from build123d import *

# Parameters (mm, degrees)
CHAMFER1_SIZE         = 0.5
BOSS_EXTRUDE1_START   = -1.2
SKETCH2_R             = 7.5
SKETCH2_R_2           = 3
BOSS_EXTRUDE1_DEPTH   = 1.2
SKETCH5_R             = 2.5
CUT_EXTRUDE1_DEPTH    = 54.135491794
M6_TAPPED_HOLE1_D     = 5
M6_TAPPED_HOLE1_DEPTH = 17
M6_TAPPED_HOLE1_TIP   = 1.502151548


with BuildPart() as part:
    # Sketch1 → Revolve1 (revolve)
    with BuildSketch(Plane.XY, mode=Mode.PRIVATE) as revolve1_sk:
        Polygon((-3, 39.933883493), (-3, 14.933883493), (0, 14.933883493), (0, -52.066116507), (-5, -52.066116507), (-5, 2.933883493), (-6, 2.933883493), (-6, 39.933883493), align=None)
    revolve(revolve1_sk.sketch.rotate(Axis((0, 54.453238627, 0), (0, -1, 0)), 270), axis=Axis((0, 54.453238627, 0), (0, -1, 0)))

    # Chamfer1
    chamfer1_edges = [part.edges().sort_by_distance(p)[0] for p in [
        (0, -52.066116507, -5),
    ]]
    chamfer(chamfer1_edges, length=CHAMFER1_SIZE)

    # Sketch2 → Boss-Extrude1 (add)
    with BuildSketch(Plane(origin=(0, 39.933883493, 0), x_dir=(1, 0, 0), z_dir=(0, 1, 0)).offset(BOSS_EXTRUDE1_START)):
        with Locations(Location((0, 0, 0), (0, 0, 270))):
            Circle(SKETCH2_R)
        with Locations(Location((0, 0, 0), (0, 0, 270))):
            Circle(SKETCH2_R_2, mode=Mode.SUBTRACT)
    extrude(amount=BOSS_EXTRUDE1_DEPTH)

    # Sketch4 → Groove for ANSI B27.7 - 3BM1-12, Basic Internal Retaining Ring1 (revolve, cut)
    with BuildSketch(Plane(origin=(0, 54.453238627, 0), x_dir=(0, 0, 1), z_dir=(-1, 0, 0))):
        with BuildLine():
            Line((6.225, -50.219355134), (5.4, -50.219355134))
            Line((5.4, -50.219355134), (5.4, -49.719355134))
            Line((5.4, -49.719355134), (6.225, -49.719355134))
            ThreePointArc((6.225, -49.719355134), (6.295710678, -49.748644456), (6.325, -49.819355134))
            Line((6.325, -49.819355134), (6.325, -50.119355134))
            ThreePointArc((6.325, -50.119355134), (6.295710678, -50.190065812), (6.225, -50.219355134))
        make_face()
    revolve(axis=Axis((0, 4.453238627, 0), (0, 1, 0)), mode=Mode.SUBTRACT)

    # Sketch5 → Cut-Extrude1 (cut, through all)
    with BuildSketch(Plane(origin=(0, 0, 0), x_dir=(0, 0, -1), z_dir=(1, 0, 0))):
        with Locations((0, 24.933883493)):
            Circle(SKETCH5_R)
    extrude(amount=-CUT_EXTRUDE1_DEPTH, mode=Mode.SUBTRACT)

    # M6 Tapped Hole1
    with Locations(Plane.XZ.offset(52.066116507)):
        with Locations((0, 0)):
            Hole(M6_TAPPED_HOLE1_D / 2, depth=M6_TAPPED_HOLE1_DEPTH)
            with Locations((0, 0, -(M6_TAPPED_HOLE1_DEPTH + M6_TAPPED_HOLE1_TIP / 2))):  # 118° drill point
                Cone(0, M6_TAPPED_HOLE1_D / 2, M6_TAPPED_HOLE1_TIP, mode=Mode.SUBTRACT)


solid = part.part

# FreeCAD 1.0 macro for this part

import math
import FreeCAD as App
import Part
import Sketcher
from FreeCAD import Vector


def edges_at(feature, points):
    """Names of the edges that pass closest to the given points."""
    edges = feature.Shape.Edges
    near = lambda p: min(range(len(edges)), key=lambda i: edges[i].distToShape(Part.Vertex(*p))[0])
    return sorted({f"Edge{near(p) + 1}" for p in points})


def add_polygon(sketch, points):
    """Adds a closed chain of lines whose ends are joined by coincident constraints."""
    first, n = sketch.GeometryCount, len(points)
    for a, b in zip(points, points[1:] + points[:1]):
        sketch.addGeometry(Part.LineSegment(App.Vector(*a, 0), App.Vector(*b, 0)), False)
    for i in range(n):
        sketch.addConstraint(Sketcher.Constraint("Coincident", first + i, 2, first + (i + 1) % n, 1))

doc = App.newDocument("Part")
body = doc.addObject("PartDesign::Body", "Body")

# Sketch on XY plane
sketch1 = body.newObject("Sketcher::SketchObject", "Sketch")
sketch1.AttachmentSupport = (doc.getObject("XY_Plane"), [""])
sketch1.MapMode = "FlatFace"
add_polygon(sketch1, [(-3, 14.9), (-3, 39.9), (-6, 39.9), (-6, 2.9), (-5, 2.9), (-5, -52.1), (0, -52.1), (0, 14.9)])  # lines 0-7
sketch1.addConstraint([
    Sketcher.Constraint("Vertical", 0),
    Sketcher.Constraint("Horizontal", 1),
    Sketcher.Constraint("Vertical", 2),
    Sketcher.Constraint("Horizontal", 3),
    Sketcher.Constraint("Vertical", 4),
    Sketcher.Constraint("Horizontal", 5),
    Sketcher.Constraint("Vertical", 6),
    Sketcher.Constraint("Horizontal", 7),
    Sketcher.Constraint("PointOnObject", 5, 2, -2),
    Sketcher.Constraint("Equal", 1, 7),
    Sketcher.Constraint("DistanceX", 1, 2, 1, 1, 3.0),
    Sketcher.Constraint("DistanceX", 3, 1, 3, 2, 1.0),
    Sketcher.Constraint("DistanceY", 0, 1, 0, 2, 25.0),
    Sketcher.Constraint("DistanceY", 2, 2, 2, 1, 37.0),
    Sketcher.Constraint("DistanceY", 4, 2, 4, 1, 55.0),
    Sketcher.Constraint("DistanceY", -1, 1, 0, 2, 39.933883),
])
revolution = body.newObject("PartDesign::Revolution", "Revolution")
revolution.Profile = sketch1
revolution.ReferenceAxis = (sketch1, ["V_Axis"])
revolution.Angle = 360
doc.recompute()

chamfer = body.newObject("PartDesign::Chamfer", "Chamfer")
chamfer.Base = (revolution, edges_at(revolution, [(0, -52.066, -5)]))
chamfer.Size = 0.5

# Sketch on XZ plane
sketch2 = body.newObject("Sketcher::SketchObject", "Sketch001")
sketch2.AttachmentSupport = (doc.getObject("XZ_Plane"), [""])
sketch2.MapMode = "FlatFace"
sketch2.AttachmentOffset = App.Placement(Vector(0, 0, -38.733883), App.Rotation())
sketch2.addGeometry([
    Part.Circle(Vector(0, 0, 0), Vector(0, 0, 1), 7.5),
    Part.Circle(Vector(0, 0, 0), Vector(0, 0, 1), 3),
], False)
sketch2.addConstraint([
    Sketcher.Constraint("Coincident", 0, 3, -1, 1),
    Sketcher.Constraint("Coincident", 1, 3, -1, 1),
    Sketcher.Constraint("Diameter", 0, 15.0),
    Sketcher.Constraint("Diameter", 1, 6.0),
])
pad1 = body.newObject("PartDesign::Pad", "Pad")
pad1.Profile = sketch2
pad1.Length = 1.2
pad1.Reversed = True

# Sketch on YZ plane
sketch3 = body.newObject("Sketcher::SketchObject", "Sketch002")
sketch3.AttachmentSupport = (doc.getObject("YZ_Plane"), [""])
sketch3.MapMode = "FlatFace"
sketch3.addGeometry([
    Part.LineSegment(Vector(4.23, 5.4, 0), Vector(4.23, 6.22, 0)),  # 0
    Part.ArcOfCircle(Part.Circle(Vector(4.33, 6.22, 0), Vector(0, 0, 1), 0.1), math.radians(90), math.radians(180)),  # 1
    Part.LineSegment(Vector(4.33, 6.33, 0), Vector(4.63, 6.33, 0)),  # 2
    Part.ArcOfCircle(Part.Circle(Vector(4.63, 6.22, 0), Vector(0, 0, 1), 0.1), math.radians(0), math.radians(90)),  # 3
    Part.LineSegment(Vector(4.73, 6.22, 0), Vector(4.73, 5.4, 0)),  # 4
    Part.LineSegment(Vector(4.73, 5.4, 0), Vector(4.23, 5.4, 0)),  # 5
], False)
sketch3.addConstraint([
    Sketcher.Constraint("Tangent", 0, 2, 1, 2),
    Sketcher.Constraint("Tangent", 1, 1, 2, 1),
    Sketcher.Constraint("Tangent", 2, 2, 3, 2),
    Sketcher.Constraint("Tangent", 3, 1, 4, 1),
    Sketcher.Constraint("Coincident", 4, 2, 5, 1),
    Sketcher.Constraint("Coincident", 5, 2, 0, 1),
    Sketcher.Constraint("Vertical", 0),
    Sketcher.Constraint("Horizontal", 2),
    Sketcher.Constraint("Vertical", 4),
    Sketcher.Constraint("Horizontal", 5),
    Sketcher.Constraint("Equal", 1, 3),
    Sketcher.Constraint("Radius", 1, 0.1),
    Sketcher.Constraint("DistanceX", 2, 1, 2, 2, 0.3),
    Sketcher.Constraint("DistanceY", -1, 1, 4, 2, 5.4),
    Sketcher.Constraint("DistanceY", 0, 1, 0, 2, 0.825),
    Sketcher.Constraint("DistanceX", -1, 1, 1, 3, 4.333883),
])
groove = body.newObject("PartDesign::Groove", "Groove")
groove.Profile = sketch3
groove.ReferenceAxis = (sketch3, ["H_Axis"])
groove.Angle = 360

# Sketch on YZ plane
sketch4 = body.newObject("Sketcher::SketchObject", "Sketch003")
sketch4.AttachmentSupport = (doc.getObject("YZ_Plane"), [""])
sketch4.MapMode = "FlatFace"
sketch4.addGeometry(Part.Circle(Vector(24.9, 0, 0), Vector(0, 0, 1), 2.5), False)
sketch4.addConstraint([
    Sketcher.Constraint("PointOnObject", 0, 3, -1),
    Sketcher.Constraint("Diameter", 0, 5.0),
    Sketcher.Constraint("DistanceX", -1, 1, 0, 3, 24.933883),
])
pocket1 = body.newObject("PartDesign::Pocket", "Pocket")
pocket1.Profile = sketch4
pocket1.Type = "ThroughAll"

# Sketch on XZ plane
sketch5 = body.newObject("Sketcher::SketchObject", "Sketch004")
sketch5.AttachmentSupport = (doc.getObject("XZ_Plane"), [""])
sketch5.MapMode = "FlatFace"
sketch5.AttachmentOffset = App.Placement(Vector(0, 0, 52.066117), App.Rotation())
sketch5.addGeometry(Part.Circle(Vector(0, 0, 0), Vector(0, 0, 1), 2.5), False)
sketch5.addConstraint([
    Sketcher.Constraint("Coincident", 0, 3, -1, 1),
    Sketcher.Constraint("Diameter", 0, 5.0),
])
doc.recompute()
hole = body.newObject("PartDesign::Hole", "Hole")
hole.Profile = sketch5
hole.ThreadType = "None"
hole.Diameter = 5
hole.DepthType = "Dimension"
hole.Depth = 17
hole.DrillPoint = "Angled"
hole.DrillPointAngle = 118

doc.recompute()
